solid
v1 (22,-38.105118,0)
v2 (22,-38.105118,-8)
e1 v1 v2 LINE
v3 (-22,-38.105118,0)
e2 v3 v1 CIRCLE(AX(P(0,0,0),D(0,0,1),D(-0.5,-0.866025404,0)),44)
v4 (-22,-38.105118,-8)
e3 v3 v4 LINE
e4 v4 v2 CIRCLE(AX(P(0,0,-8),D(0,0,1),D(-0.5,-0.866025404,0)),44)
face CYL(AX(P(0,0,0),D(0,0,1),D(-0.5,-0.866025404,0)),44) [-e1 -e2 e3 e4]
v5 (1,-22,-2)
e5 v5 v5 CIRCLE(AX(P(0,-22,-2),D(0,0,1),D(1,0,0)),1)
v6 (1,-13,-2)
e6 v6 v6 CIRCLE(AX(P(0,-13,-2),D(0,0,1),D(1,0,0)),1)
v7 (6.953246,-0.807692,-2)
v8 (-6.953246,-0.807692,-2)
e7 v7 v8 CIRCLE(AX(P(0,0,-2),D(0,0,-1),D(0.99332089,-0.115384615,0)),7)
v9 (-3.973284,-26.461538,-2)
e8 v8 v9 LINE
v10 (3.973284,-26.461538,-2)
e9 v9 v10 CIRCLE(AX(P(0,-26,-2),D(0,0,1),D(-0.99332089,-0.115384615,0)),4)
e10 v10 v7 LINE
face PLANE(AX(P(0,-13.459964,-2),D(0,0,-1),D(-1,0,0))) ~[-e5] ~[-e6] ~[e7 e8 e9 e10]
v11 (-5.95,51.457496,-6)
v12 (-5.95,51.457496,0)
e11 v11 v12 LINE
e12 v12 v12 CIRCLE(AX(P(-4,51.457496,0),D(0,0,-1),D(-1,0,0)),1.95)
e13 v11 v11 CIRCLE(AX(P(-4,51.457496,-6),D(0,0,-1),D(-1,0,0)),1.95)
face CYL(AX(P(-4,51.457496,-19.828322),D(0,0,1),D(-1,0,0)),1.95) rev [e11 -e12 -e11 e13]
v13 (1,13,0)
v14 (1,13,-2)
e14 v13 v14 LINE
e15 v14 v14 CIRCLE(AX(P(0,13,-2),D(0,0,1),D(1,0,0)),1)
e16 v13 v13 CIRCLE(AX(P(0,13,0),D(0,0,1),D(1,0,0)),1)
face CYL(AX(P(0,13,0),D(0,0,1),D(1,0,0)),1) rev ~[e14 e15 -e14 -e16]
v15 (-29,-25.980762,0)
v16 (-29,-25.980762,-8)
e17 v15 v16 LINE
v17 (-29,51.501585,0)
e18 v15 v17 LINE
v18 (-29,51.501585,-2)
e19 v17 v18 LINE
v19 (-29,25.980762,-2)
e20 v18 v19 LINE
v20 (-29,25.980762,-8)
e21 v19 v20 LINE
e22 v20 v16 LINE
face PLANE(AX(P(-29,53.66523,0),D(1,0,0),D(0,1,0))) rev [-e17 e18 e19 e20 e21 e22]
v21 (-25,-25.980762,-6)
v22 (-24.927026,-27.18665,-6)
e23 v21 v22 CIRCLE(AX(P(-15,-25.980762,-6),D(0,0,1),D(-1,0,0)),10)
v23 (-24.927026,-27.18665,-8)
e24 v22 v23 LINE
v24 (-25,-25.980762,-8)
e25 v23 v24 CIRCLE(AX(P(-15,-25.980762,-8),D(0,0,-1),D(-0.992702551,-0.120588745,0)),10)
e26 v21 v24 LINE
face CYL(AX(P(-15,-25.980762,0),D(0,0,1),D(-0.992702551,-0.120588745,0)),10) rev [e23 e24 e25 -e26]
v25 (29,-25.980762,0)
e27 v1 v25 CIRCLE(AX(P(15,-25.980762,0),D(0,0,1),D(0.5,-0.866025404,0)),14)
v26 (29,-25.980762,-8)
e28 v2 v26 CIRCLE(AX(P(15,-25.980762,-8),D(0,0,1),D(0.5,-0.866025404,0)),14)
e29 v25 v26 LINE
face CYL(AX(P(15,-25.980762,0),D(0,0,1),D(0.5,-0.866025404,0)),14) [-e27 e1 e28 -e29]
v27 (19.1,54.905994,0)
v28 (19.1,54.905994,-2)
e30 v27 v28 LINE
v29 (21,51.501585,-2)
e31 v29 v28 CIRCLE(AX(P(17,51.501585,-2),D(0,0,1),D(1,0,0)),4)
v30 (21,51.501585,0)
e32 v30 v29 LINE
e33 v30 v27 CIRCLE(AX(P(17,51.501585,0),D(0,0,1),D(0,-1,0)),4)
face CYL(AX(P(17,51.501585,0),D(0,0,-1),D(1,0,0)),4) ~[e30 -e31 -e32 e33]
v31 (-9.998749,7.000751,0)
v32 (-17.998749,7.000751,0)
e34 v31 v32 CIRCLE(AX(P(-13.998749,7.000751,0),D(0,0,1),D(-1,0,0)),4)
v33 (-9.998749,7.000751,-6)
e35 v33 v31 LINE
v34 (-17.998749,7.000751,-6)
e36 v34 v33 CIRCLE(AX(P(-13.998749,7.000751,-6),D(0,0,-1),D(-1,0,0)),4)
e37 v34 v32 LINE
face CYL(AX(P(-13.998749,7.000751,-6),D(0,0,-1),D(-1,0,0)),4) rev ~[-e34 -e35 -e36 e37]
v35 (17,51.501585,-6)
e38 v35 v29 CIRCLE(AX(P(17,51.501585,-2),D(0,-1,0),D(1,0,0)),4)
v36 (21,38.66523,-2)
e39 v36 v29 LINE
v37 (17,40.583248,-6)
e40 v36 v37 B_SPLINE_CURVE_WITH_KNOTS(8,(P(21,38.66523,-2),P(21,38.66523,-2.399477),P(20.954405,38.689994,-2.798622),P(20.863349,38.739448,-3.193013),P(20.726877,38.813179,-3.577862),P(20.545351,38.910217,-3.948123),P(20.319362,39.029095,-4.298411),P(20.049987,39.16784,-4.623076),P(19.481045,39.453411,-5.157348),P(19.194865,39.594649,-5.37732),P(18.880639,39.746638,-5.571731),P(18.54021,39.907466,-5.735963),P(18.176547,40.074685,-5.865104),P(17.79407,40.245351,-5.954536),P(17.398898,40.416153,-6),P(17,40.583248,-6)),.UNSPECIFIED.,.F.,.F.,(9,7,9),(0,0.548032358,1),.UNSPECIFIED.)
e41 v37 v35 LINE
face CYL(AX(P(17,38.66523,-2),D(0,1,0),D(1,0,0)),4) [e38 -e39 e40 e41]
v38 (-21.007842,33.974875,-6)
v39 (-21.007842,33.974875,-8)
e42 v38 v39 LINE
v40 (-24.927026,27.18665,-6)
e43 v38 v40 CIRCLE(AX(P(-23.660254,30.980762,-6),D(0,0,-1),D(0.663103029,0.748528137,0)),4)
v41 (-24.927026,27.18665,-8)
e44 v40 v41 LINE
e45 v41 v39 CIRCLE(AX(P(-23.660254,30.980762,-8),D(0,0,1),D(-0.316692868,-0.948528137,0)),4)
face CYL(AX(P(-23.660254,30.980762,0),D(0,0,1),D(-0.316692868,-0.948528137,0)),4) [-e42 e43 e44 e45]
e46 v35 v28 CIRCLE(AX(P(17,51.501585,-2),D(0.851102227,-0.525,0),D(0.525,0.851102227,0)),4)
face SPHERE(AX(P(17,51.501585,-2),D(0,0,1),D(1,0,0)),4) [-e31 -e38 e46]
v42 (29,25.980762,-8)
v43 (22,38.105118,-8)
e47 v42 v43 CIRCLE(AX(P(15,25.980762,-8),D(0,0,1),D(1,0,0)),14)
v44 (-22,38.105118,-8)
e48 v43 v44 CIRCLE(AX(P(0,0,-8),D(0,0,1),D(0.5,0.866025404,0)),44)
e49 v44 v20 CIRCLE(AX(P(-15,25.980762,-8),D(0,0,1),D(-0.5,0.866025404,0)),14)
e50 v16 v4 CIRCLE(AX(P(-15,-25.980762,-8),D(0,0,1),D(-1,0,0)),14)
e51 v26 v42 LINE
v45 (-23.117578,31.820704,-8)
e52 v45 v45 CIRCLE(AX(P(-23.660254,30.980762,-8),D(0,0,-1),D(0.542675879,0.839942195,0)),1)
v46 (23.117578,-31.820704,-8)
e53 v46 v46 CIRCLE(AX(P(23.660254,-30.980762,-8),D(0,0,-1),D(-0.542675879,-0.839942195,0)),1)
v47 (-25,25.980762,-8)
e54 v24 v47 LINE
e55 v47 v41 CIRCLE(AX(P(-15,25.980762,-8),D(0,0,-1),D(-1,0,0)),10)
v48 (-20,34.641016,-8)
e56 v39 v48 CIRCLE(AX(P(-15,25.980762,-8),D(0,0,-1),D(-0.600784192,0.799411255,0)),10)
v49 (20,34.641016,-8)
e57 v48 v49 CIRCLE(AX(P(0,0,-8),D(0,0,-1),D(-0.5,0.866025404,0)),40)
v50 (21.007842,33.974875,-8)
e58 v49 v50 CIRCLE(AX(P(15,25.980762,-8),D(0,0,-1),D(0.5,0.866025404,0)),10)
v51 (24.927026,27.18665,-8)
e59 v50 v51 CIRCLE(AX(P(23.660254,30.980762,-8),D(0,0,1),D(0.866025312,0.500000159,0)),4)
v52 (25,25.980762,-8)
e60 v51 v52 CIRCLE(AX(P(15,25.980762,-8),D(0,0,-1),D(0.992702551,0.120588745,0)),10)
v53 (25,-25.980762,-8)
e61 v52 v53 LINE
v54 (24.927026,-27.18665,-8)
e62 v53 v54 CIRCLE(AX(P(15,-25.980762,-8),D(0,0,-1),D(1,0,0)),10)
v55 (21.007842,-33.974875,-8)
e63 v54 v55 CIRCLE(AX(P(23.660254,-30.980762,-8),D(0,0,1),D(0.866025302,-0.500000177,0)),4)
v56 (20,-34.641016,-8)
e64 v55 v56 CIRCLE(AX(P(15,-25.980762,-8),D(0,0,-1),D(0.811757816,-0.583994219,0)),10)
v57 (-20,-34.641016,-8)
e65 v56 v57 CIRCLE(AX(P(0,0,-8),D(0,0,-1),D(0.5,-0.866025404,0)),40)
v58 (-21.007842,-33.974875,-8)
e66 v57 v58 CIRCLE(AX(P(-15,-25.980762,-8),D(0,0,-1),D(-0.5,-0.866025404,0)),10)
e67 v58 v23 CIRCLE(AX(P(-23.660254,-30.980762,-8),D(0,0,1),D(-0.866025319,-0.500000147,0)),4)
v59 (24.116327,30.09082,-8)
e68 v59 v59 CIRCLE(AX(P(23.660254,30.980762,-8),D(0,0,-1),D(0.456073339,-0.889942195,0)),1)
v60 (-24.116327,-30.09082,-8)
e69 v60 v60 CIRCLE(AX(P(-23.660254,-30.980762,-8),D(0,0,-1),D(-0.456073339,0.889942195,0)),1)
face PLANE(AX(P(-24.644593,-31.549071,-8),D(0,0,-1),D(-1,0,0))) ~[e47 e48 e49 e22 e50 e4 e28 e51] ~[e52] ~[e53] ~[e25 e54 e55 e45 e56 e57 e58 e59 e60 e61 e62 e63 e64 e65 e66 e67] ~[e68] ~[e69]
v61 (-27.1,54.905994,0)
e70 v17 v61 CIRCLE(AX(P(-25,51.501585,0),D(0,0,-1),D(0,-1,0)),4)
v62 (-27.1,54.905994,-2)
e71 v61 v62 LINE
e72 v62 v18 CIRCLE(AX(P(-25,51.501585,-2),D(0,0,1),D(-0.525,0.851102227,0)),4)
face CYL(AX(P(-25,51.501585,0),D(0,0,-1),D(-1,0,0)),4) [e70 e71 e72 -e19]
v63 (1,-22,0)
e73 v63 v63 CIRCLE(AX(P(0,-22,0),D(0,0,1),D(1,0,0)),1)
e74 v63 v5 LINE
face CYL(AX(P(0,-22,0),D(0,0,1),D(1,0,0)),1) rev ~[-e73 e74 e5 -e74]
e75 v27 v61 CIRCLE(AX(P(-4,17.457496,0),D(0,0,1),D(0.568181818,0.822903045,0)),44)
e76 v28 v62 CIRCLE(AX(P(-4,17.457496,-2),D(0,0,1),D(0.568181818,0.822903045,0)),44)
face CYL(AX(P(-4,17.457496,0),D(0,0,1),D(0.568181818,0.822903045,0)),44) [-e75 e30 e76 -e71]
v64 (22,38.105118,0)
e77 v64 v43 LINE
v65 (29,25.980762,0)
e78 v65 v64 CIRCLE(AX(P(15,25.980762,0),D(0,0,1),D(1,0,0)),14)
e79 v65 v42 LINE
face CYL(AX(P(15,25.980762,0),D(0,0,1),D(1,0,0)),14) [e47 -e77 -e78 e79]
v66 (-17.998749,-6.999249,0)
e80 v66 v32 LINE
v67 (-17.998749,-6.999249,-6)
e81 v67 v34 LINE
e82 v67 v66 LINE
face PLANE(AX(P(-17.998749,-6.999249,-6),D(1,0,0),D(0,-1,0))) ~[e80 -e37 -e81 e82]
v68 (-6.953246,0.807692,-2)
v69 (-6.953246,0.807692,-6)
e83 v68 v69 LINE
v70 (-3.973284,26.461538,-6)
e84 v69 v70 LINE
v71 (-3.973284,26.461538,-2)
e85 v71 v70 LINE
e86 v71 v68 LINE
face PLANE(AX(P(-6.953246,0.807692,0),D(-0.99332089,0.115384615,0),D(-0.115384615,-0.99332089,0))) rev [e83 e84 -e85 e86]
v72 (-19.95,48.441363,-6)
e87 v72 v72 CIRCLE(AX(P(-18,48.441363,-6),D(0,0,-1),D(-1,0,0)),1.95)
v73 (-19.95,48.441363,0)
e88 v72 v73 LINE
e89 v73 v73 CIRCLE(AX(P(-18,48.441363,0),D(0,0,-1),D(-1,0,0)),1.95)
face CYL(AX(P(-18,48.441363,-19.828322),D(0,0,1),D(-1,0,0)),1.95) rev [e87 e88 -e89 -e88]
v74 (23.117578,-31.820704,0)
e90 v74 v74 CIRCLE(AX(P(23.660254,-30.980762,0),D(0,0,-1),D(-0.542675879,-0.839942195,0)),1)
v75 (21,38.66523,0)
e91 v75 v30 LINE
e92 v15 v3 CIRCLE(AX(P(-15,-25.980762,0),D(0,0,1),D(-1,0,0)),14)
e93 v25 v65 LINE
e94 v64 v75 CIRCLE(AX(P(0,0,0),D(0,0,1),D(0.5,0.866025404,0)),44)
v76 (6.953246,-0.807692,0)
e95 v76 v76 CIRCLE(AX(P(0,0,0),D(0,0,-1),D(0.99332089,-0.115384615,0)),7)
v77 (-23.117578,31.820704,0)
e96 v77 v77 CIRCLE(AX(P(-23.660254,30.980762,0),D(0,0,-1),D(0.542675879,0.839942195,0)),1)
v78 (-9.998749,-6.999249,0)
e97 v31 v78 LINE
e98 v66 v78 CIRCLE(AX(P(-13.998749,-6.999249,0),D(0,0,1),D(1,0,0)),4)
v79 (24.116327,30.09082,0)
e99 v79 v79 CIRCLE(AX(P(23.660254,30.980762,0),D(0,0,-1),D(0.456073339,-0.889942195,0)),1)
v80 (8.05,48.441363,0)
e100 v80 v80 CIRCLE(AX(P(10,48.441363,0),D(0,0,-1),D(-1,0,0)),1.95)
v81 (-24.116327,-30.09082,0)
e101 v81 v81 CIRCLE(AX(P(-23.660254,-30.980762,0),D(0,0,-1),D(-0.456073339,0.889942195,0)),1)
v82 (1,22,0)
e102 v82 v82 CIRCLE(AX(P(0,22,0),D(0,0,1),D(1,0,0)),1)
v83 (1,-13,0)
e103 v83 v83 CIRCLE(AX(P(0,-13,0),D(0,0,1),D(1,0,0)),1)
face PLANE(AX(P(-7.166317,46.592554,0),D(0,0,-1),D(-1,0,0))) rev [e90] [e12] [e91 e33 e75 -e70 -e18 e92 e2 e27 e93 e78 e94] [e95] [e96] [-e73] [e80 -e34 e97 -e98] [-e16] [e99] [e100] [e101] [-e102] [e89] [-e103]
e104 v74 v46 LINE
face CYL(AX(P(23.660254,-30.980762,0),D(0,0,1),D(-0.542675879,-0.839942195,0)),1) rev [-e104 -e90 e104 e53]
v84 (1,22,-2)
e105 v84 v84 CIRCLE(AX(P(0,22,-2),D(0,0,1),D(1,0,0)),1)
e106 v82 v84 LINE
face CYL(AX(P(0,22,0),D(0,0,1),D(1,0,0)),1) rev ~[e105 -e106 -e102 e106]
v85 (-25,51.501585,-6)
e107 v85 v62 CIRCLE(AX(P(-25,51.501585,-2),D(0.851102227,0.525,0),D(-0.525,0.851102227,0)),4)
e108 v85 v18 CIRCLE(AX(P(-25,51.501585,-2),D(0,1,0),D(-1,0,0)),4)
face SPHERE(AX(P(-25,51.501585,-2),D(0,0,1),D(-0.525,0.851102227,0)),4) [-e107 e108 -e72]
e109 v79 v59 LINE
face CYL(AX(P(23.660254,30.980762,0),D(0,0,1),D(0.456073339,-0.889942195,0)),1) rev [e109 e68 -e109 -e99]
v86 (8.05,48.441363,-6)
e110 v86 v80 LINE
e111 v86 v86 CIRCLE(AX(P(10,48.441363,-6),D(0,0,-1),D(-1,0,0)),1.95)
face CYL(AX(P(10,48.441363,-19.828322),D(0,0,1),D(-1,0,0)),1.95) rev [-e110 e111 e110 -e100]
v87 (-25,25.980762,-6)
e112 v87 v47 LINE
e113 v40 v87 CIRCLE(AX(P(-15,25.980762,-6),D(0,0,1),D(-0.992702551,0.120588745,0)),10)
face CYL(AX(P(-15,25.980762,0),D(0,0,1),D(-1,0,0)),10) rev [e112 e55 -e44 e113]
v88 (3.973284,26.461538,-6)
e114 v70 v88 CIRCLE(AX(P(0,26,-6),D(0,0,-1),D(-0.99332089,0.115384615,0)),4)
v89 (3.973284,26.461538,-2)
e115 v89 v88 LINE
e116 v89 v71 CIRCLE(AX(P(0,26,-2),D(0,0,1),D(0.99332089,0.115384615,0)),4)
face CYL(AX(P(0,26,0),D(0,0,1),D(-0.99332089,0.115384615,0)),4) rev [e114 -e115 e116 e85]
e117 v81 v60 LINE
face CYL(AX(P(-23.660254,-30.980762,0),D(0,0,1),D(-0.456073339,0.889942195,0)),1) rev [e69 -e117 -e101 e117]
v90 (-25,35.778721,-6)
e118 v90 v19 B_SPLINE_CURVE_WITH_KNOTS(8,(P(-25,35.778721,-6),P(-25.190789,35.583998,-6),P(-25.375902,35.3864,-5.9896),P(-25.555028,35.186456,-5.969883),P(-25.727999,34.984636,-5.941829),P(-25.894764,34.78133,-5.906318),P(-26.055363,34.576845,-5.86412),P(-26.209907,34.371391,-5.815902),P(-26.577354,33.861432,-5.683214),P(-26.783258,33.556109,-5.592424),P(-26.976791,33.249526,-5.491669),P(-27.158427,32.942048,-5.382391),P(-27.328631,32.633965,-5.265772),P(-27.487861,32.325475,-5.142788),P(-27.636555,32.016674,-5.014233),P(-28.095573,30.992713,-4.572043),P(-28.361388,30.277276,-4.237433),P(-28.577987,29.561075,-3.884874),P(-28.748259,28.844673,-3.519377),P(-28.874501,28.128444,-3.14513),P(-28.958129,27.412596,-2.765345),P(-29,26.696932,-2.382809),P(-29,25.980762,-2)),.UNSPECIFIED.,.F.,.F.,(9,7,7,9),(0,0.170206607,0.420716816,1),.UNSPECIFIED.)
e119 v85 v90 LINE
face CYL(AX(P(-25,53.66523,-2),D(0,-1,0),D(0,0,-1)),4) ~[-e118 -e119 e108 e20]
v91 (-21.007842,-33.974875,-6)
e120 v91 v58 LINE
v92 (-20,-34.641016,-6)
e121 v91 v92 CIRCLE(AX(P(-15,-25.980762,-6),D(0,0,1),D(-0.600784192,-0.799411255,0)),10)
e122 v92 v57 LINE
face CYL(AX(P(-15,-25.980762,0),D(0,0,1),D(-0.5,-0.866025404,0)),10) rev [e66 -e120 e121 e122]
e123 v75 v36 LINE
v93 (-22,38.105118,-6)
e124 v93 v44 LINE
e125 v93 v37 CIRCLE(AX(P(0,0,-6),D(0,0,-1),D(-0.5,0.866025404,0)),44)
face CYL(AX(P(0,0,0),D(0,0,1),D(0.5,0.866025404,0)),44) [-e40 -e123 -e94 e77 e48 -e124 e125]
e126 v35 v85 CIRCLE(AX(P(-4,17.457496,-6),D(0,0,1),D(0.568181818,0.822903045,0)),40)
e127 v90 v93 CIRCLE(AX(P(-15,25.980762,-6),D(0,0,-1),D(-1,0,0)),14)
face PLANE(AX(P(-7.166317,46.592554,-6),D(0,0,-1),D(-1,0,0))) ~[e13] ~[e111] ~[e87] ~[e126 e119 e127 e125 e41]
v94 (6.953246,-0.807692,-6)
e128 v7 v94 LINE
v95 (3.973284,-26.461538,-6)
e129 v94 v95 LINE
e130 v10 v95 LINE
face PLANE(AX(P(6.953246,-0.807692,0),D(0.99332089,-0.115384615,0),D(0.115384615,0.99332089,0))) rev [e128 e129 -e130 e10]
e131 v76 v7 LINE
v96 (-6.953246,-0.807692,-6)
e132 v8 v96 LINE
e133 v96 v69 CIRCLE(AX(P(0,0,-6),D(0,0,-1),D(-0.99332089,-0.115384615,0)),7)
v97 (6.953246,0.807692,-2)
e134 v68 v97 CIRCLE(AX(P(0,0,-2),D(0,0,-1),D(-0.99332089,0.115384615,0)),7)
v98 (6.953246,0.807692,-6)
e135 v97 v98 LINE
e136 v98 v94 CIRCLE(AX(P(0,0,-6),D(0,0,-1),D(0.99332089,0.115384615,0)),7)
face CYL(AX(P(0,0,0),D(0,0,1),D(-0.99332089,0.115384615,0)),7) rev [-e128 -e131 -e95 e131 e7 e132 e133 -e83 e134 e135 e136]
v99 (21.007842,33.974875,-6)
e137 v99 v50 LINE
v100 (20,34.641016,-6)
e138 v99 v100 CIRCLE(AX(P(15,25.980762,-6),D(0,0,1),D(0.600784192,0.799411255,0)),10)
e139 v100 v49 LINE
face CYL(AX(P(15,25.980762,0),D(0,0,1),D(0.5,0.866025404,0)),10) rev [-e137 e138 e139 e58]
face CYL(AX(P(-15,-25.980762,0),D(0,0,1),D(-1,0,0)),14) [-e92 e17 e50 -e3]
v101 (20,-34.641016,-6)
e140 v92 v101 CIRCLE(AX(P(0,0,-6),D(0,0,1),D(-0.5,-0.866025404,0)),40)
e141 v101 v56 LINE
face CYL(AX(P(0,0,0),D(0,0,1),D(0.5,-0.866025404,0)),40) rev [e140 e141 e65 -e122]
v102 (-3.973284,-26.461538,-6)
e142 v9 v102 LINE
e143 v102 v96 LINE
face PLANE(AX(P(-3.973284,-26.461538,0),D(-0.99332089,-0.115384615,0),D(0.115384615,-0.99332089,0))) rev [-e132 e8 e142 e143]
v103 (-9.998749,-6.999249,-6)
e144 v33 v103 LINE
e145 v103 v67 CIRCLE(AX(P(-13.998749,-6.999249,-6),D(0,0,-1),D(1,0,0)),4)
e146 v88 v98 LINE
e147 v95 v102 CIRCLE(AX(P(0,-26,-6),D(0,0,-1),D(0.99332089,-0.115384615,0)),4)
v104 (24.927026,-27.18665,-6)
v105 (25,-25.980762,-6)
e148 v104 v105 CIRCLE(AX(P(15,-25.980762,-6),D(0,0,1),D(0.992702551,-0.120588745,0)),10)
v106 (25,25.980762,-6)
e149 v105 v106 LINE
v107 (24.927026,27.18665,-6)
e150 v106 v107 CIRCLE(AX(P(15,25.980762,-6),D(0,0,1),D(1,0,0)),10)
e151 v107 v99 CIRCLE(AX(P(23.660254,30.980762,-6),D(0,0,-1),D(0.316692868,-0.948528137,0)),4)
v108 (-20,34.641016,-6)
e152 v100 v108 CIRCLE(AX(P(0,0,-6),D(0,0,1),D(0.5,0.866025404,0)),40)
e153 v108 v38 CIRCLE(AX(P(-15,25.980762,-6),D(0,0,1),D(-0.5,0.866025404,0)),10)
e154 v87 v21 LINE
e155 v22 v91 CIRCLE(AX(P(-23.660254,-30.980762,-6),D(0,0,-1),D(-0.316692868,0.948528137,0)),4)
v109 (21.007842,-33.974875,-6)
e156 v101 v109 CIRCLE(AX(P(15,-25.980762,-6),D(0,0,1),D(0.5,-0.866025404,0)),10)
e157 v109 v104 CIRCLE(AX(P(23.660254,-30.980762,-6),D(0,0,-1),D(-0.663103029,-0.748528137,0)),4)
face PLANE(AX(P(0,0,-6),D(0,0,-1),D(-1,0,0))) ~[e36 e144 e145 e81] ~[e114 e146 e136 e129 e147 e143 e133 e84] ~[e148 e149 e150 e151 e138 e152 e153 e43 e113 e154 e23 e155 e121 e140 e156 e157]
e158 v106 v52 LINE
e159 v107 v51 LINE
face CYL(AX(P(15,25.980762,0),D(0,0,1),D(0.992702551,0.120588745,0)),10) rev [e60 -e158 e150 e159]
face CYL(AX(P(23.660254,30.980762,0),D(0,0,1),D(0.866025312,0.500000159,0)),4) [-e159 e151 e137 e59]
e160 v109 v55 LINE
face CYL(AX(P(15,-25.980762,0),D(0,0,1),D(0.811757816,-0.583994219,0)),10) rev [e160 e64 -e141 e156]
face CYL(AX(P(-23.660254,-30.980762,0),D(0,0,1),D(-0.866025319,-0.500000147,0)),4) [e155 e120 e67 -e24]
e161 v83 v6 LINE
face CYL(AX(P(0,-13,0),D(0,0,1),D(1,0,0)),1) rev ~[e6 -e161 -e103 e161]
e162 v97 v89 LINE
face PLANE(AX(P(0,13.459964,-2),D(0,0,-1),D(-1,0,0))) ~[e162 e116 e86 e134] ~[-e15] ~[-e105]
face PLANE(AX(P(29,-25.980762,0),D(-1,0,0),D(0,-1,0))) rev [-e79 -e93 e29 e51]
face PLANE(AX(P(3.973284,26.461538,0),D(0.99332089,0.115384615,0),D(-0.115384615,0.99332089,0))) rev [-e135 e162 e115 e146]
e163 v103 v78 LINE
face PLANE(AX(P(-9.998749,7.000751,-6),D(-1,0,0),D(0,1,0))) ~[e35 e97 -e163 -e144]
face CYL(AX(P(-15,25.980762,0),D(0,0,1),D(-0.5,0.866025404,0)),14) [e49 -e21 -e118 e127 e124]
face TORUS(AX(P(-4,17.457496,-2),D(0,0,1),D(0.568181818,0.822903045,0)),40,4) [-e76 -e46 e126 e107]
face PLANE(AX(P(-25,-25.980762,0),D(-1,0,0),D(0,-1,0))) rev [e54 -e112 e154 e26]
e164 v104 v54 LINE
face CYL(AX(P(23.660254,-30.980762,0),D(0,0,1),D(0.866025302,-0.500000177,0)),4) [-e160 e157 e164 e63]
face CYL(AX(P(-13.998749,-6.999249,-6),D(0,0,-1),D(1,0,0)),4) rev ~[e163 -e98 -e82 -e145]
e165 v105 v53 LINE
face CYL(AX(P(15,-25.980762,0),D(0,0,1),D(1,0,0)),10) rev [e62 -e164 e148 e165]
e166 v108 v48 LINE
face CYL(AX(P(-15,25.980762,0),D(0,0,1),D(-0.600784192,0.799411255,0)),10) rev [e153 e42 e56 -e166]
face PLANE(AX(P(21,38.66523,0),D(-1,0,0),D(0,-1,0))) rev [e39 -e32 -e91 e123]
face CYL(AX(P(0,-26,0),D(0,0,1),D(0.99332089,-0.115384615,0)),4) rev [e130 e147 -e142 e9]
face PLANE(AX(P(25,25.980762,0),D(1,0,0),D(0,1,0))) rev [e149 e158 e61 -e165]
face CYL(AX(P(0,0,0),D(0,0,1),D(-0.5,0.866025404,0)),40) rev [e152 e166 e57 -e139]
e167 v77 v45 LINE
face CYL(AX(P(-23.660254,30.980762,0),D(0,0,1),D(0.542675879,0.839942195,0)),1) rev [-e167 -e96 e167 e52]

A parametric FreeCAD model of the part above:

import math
import FreeCAD as App
import Part
import Sketcher
Q = App.Units.Quantity


def edges_at(feature, points):
    """Names of the edges that pass closest to the given points."""
    edges = feature.Shape.Edges
    near = lambda p: min(range(len(edges)), key=lambda i: edges[i].distToShape(Part.Vertex(*p))[0])
    return sorted({f"Edge{near(p) + 1}" for p in points})

doc = App.newDocument("Part")
body = doc.addObject("PartDesign::Body", "Body")

# Sketch on XY plane
sketch1 = doc.addObject("Sketcher::SketchObject", "Sketch")
body.addObject(sketch1)
sketch1.AttachmentSupport = (doc.XY_Plane, [""])
sketch1.MapMode = "FlatFace"
sketch1.addGeometry(Part.LineSegment(App.Vector(25, -26, 0), App.Vector(25, 26, 0)), False)
sketch1.addGeometry(Part.ArcOfCircle(Part.Circle(App.Vector(15, 26, 0), App.Vector(0, 0, 1), 10), math.radians(0), math.radians(6.93)), False)
sketch1.addGeometry(Part.ArcOfCircle(Part.Circle(App.Vector(23.7, 31, 0), App.Vector(0, 0, 1), 4), math.radians(132), math.radians(288)), False)
sketch1.addGeometry(Part.ArcOfCircle(Part.Circle(App.Vector(15, 26, 0), App.Vector(0, 0, 1), 10), math.radians(53.07), math.radians(60)), False)
sketch1.addGeometry(Part.ArcOfCircle(Part.Circle(App.Vector(0, 0, 0), App.Vector(0, 0, 1), 40), math.radians(60), math.radians(120)), False)
sketch1.addGeometry(Part.ArcOfCircle(Part.Circle(App.Vector(-15, 26, 0), App.Vector(0, 0, 1), 10), math.radians(120), math.radians(126.93)), False)
sketch1.addGeometry(Part.ArcOfCircle(Part.Circle(App.Vector(-23.7, 31, 0), App.Vector(0, 0, 1), 4), math.radians(-108), math.radians(48)), False)
sketch1.addGeometry(Part.ArcOfCircle(Part.Circle(App.Vector(-15, 26, 0), App.Vector(0, 0, 1), 10), math.radians(173.07), math.radians(180)), False)
sketch1.addGeometry(Part.LineSegment(App.Vector(-25, 26, 0), App.Vector(-25, -26, 0)), False)
sketch1.addGeometry(Part.ArcOfCircle(Part.Circle(App.Vector(-15, -26, 0), App.Vector(0, 0, 1), 10), math.radians(180), math.radians(186.93)), False)
sketch1.addGeometry(Part.ArcOfCircle(Part.Circle(App.Vector(-23.7, -31, 0), App.Vector(0, 0, 1), 4), math.radians(-48), math.radians(108)), False)
sketch1.addGeometry(Part.ArcOfCircle(Part.Circle(App.Vector(-15, -26, 0), App.Vector(0, 0, 1), 10), math.radians(-126.93), math.radians(-120)), False)
sketch1.addGeometry(Part.ArcOfCircle(Part.Circle(App.Vector(0, 0, 0), App.Vector(0, 0, 1), 40), math.radians(-120), math.radians(-60)), False)
sketch1.addGeometry(Part.ArcOfCircle(Part.Circle(App.Vector(15, -26, 0), App.Vector(0, 0, 1), 10), math.radians(-60), math.radians(-53.07)), False)
sketch1.addGeometry(Part.ArcOfCircle(Part.Circle(App.Vector(23.7, -31, 0), App.Vector(0, 0, 1), 4), math.radians(72), math.radians(228)), False)
sketch1.addGeometry(Part.ArcOfCircle(Part.Circle(App.Vector(15, -26, 0), App.Vector(0, 0, 1), 10), math.radians(-6.93), math.radians(0)), False)
sketch1.addGeometry(Part.LineSegment(App.Vector(-4, -26.5, 0), App.Vector(-7, -0.8, 0)), False)
sketch1.addGeometry(Part.ArcOfCircle(Part.Circle(App.Vector(0, 0, 0), App.Vector(0, 0, 1), 7), math.radians(173.37), math.radians(186.63)), False)
sketch1.addGeometry(Part.LineSegment(App.Vector(-7, 0.8, 0), App.Vector(-4, 26.5, 0)), False)
sketch1.addGeometry(Part.ArcOfCircle(Part.Circle(App.Vector(0, 26, 0), App.Vector(0, 0, 1), 4), math.radians(7), math.radians(173)), False)
sketch1.addGeometry(Part.LineSegment(App.Vector(4, 26.5, 0), App.Vector(7, 0.8, 0)), False)
sketch1.addGeometry(Part.ArcOfCircle(Part.Circle(App.Vector(0, 0, 0), App.Vector(0, 0, 1), 7), math.radians(-6.63), math.radians(6.63)), False)
sketch1.addGeometry(Part.LineSegment(App.Vector(7, -0.8, 0), App.Vector(4, -26.5, 0)), False)
sketch1.addGeometry(Part.ArcOfCircle(Part.Circle(App.Vector(0, -26, 0), App.Vector(0, 0, 1), 4), math.radians(-173), math.radians(-7)), False)
sketch1.addConstraint(Sketcher.Constraint("Tangent", 0, 2, 1, 1))
sketch1.addConstraint(Sketcher.Constraint("Coincident", 1, 2, 2, 2))
sketch1.addConstraint(Sketcher.Constraint("Coincident", 2, 1, 3, 1))
sketch1.addConstraint(Sketcher.Constraint("Tangent", 3, 2, 4, 1))
sketch1.addConstraint(Sketcher.Constraint("Tangent", 4, 2, 5, 1))
sketch1.addConstraint(Sketcher.Constraint("Coincident", 5, 2, 6, 2))
sketch1.addConstraint(Sketcher.Constraint("Coincident", 6, 1, 7, 1))
sketch1.addConstraint(Sketcher.Constraint("Tangent", 7, 2, 8, 1))
sketch1.addConstraint(Sketcher.Constraint("Tangent", 8, 2, 9, 1))
sketch1.addConstraint(Sketcher.Constraint("Coincident", 9, 2, 10, 2))
sketch1.addConstraint(Sketcher.Constraint("Coincident", 10, 1, 11, 1))
sketch1.addConstraint(Sketcher.Constraint("Tangent", 11, 2, 12, 1))
sketch1.addConstraint(Sketcher.Constraint("Tangent", 12, 2, 13, 1))
sketch1.addConstraint(Sketcher.Constraint("Coincident", 13, 2, 14, 2))
sketch1.addConstraint(Sketcher.Constraint("Coincident", 14, 1, 15, 1))
sketch1.addConstraint(Sketcher.Constraint("Tangent", 15, 2, 0, 1))
sketch1.addConstraint(Sketcher.Constraint("Tangent", 16, 2, 17, 2))
sketch1.addConstraint(Sketcher.Constraint("Tangent", 17, 1, 18, 1))
sketch1.addConstraint(Sketcher.Constraint("Tangent", 18, 2, 19, 2))
sketch1.addConstraint(Sketcher.Constraint("Tangent", 19, 1, 20, 1))
sketch1.addConstraint(Sketcher.Constraint("Tangent", 20, 2, 21, 2))
sketch1.addConstraint(Sketcher.Constraint("Tangent", 21, 1, 22, 1))
sketch1.addConstraint(Sketcher.Constraint("Tangent", 22, 2, 23, 2))
sketch1.addConstraint(Sketcher.Constraint("Tangent", 23, 1, 16, 1))
sketch1.addConstraint(Sketcher.Constraint("Vertical", 0))
sketch1.addConstraint(Sketcher.Constraint("Vertical", 8))
sketch1.addConstraint(Sketcher.Constraint("Coincident", 4, 3, -1, 1))
sketch1.addConstraint(Sketcher.Constraint("Coincident", 12, 3, -1, 1))
sketch1.addConstraint(Sketcher.Constraint("Coincident", 17, 3, -1, 1))
sketch1.addConstraint(Sketcher.Constraint("Coincident", 21, 3, -1, 1))
sketch1.addConstraint(Sketcher.Constraint("Coincident", 3, 3, 1, 3))
sketch1.addConstraint(Sketcher.Constraint("Coincident", 7, 3, 5, 3))
sketch1.addConstraint(Sketcher.Constraint("Coincident", 11, 3, 9, 3))
sketch1.addConstraint(Sketcher.Constraint("Coincident", 15, 3, 13, 3))
sketch1.addConstraint(Sketcher.Constraint("Equal", 1, 3))
sketch1.addConstraint(Sketcher.Constraint("Equal", 3, 5))
sketch1.addConstraint(Sketcher.Constraint("Equal", 2, 6))
sketch1.addConstraint(Sketcher.Constraint("Equal", 5, 7))
sketch1.addConstraint(Sketcher.Constraint("Equal", 7, 9))
sketch1.addConstraint(Sketcher.Constraint("Equal", 6, 10))
sketch1.addConstraint(Sketcher.Constraint("Equal", 9, 11))
sketch1.addConstraint(Sketcher.Constraint("Equal", 4, 12))
sketch1.addConstraint(Sketcher.Constraint("Equal", 11, 13))
sketch1.addConstraint(Sketcher.Constraint("Equal", 10, 14))
sketch1.addConstraint(Sketcher.Constraint("Equal", 13, 15))
sketch1.addConstraint(Sketcher.Constraint("Equal", 14, 19))
sketch1.addConstraint(Sketcher.Constraint("Equal", 17, 21))
sketch1.addConstraint(Sketcher.Constraint("Equal", 19, 23))
sketch1.addConstraint(Sketcher.Constraint("Symmetric", 2, 3, 10, 3, -1, 1))
sketch1.addConstraint(Sketcher.Constraint("Symmetric", 6, 3, 14, 3, -1, 1))
sketch1.addConstraint(Sketcher.Constraint("Symmetric", 19, 3, 23, 3, -1, 1))
sketch1.addConstraint(Sketcher.Constraint("Symmetric", 2, 3, 6, 3, -2))
sketch1.addConstraint(Sketcher.Constraint("PointOnObject", 19, 3, -2))
sketch1.addConstraint(Sketcher.Constraint("Horizontal", 3, 3, 5, 3))
sketch1.addConstraint(Sketcher.Constraint("Radius", 1, Q("10 mm")))
sketch1.addConstraint(Sketcher.Constraint("Radius", 2, Q("4 mm")))
sketch1.addConstraint(Sketcher.Constraint("Radius", 4, Q("40 mm")))
sketch1.addConstraint(Sketcher.Constraint("Radius", 17, Q("7 mm")))
sketch1.addConstraint(Sketcher.Constraint("DistanceX", -1, 1, 1, 3, Q("15 mm")))
sketch1.addConstraint(Sketcher.Constraint("DistanceY", -1, 1, 19, 3, Q("26 mm")))
sketch1.addConstraint(Sketcher.Constraint("DistanceY", 1, 3, 2, 3, Q("5 mm")))
sketch1.addConstraint(Sketcher.Constraint("DistanceY", -1, 1, 1, 2, Q("27.18665 mm")))
pad1 = doc.addObject("PartDesign::Pad", "Pad")
body.addObject(pad1)
pad1.Profile = sketch1
pad1.Length = 6

# Sketch on XY plane
sketch2 = doc.addObject("Sketcher::SketchObject", "Sketch001")
body.addObject(sketch2)
sketch2.AttachmentSupport = (doc.XY_Plane, [""])
sketch2.MapMode = "FlatFace"
sketch2.addGeometry(Part.LineSegment(App.Vector(-4, 26.5, 0), App.Vector(-7, 0.8, 0)), False)
sketch2.addGeometry(Part.ArcOfCircle(Part.Circle(App.Vector(0, 0, 0), App.Vector(0, 0, 1), 7), math.radians(7), math.radians(173)), False)
sketch2.addGeometry(Part.LineSegment(App.Vector(7, 0.8, 0), App.Vector(4, 26.5, 0)), False)
sketch2.addGeometry(Part.ArcOfCircle(Part.Circle(App.Vector(0, 26, 0), App.Vector(0, 0, 1), 4), math.radians(7), math.radians(173)), False)
sketch2.addGeometry(Part.Circle(App.Vector(0, 13, 0), App.Vector(0, 0, 1), 1), False)
sketch2.addGeometry(Part.Circle(App.Vector(0, 22, 0), App.Vector(0, 0, 1), 1), False)
sketch2.addGeometry(Part.ArcOfCircle(Part.Circle(App.Vector(0, 0, 0), App.Vector(0, 0, 1), 7), math.radians(-173), math.radians(-7)), False)
sketch2.addGeometry(Part.LineSegment(App.Vector(-7, -0.8, 0), App.Vector(-4, -26.5, 0)), False)
sketch2.addGeometry(Part.ArcOfCircle(Part.Circle(App.Vector(0, -26, 0), App.Vector(0, 0, 1), 4), math.radians(-173), math.radians(-7)), False)
sketch2.addGeometry(Part.LineSegment(App.Vector(4, -26.5, 0), App.Vector(7, -0.8, 0)), False)
sketch2.addGeometry(Part.Circle(App.Vector(0, -22, 0), App.Vector(0, 0, 1), 1), False)
sketch2.addGeometry(Part.Circle(App.Vector(0, -13, 0), App.Vector(0, 0, 1), 1), False)
sketch2.addConstraint(Sketcher.Constraint("Tangent", 0, 2, 1, 2))
sketch2.addConstraint(Sketcher.Constraint("Tangent", 1, 1, 2, 1))
sketch2.addConstraint(Sketcher.Constraint("Tangent", 2, 2, 3, 1))
sketch2.addConstraint(Sketcher.Constraint("Tangent", 3, 2, 0, 1))
sketch2.addConstraint(Sketcher.Constraint("Tangent", 6, 1, 7, 1))
sketch2.addConstraint(Sketcher.Constraint("Tangent", 7, 2, 8, 1))
sketch2.addConstraint(Sketcher.Constraint("Tangent", 8, 2, 9, 1))
sketch2.addConstraint(Sketcher.Constraint("Tangent", 9, 2, 6, 2))
sketch2.addConstraint(Sketcher.Constraint("Coincident", 1, 3, -1, 1))
sketch2.addConstraint(Sketcher.Constraint("Coincident", 6, 3, -1, 1))
sketch2.addConstraint(Sketcher.Constraint("Equal", 4, 5))
sketch2.addConstraint(Sketcher.Constraint("Equal", 1, 6))
sketch2.addConstraint(Sketcher.Constraint("Equal", 3, 8))
sketch2.addConstraint(Sketcher.Constraint("Equal", 5, 10))
sketch2.addConstraint(Sketcher.Constraint("Equal", 10, 11))
sketch2.addConstraint(Sketcher.Constraint("Symmetric", 3, 3, 8, 3, -1, 1))
sketch2.addConstraint(Sketcher.Constraint("Symmetric", 5, 3, 10, 3, -1, 1))
sketch2.addConstraint(Sketcher.Constraint("Symmetric", 4, 3, 11, 3, -1, 1))
sketch2.addConstraint(Sketcher.Constraint("PointOnObject", 3, 3, -2))
sketch2.addConstraint(Sketcher.Constraint("PointOnObject", 4, 3, -2))
sketch2.addConstraint(Sketcher.Constraint("PointOnObject", 5, 3, -2))
sketch2.addConstraint(Sketcher.Constraint("Diameter", 4, Q("2 mm")))
sketch2.addConstraint(Sketcher.Constraint("Radius", 1, Q("7 mm")))
sketch2.addConstraint(Sketcher.Constraint("Radius", 3, Q("4 mm")))
sketch2.addConstraint(Sketcher.Constraint("DistanceY", -1, 1, 3, 3, Q("26 mm")))
sketch2.addConstraint(Sketcher.Constraint("DistanceY", -1, 1, 4, 3, Q("13 mm")))
sketch2.addConstraint(Sketcher.Constraint("DistanceY", -1, 1, 5, 3, Q("22 mm")))
pad2 = doc.addObject("PartDesign::Pad", "Pad001")
body.addObject(pad2)
pad2.Profile = sketch2
pad2.Length = 2

# Sketch on XY plane
sketch3 = doc.addObject("Sketcher::SketchObject", "Sketch002")
body.addObject(sketch3)
sketch3.AttachmentSupport = (doc.XY_Plane, [""])
sketch3.MapMode = "FlatFace"
sketch3.addGeometry(Part.ArcOfCircle(Part.Circle(App.Vector(15, 26, 0), App.Vector(0, 0, 1), 14), math.radians(0), math.radians(60)), False)
sketch3.addGeometry(Part.ArcOfCircle(Part.Circle(App.Vector(0, 0, 0), App.Vector(0, 0, 1), 44), math.radians(60), math.radians(120)), False)
sketch3.addGeometry(Part.ArcOfCircle(Part.Circle(App.Vector(-15, 26, 0), App.Vector(0, 0, 1), 14), math.radians(120), math.radians(180)), False)
sketch3.addGeometry(Part.LineSegment(App.Vector(-29, 26, 0), App.Vector(-29, -26, 0)), False)
sketch3.addGeometry(Part.ArcOfCircle(Part.Circle(App.Vector(-15, -26, 0), App.Vector(0, 0, 1), 14), math.radians(180), math.radians(240)), False)
sketch3.addGeometry(Part.ArcOfCircle(Part.Circle(App.Vector(0, 0, 0), App.Vector(0, 0, 1), 44), math.radians(-120), math.radians(-60)), False)
sketch3.addGeometry(Part.ArcOfCircle(Part.Circle(App.Vector(15, -26, 0), App.Vector(0, 0, 1), 14), math.radians(-60), math.radians(0)), False)
sketch3.addGeometry(Part.LineSegment(App.Vector(29, -26, 0), App.Vector(29, 26, 0)), False)
sketch3.addGeometry(Part.Circle(App.Vector(-23.7, 31, 0), App.Vector(0, 0, 1), 1), False)
sketch3.addGeometry(Part.Circle(App.Vector(-23.7, -31, 0), App.Vector(0, 0, 1), 1), False)
sketch3.addGeometry(Part.Circle(App.Vector(23.7, -31, 0), App.Vector(0, 0, 1), 1), False)
sketch3.addGeometry(Part.Circle(App.Vector(23.7, 31, 0), App.Vector(0, 0, 1), 1), False)
sketch3.addGeometry(Part.ArcOfCircle(Part.Circle(App.Vector(-15, 26, 0), App.Vector(0, 0, 1), 10), math.radians(173.07), math.radians(180)), False)
sketch3.addGeometry(Part.ArcOfCircle(Part.Circle(App.Vector(-23.7, 31, 0), App.Vector(0, 0, 1), 4), math.radians(-108), math.radians(48)), False)
sketch3.addGeometry(Part.ArcOfCircle(Part.Circle(App.Vector(-15, 26, 0), App.Vector(0, 0, 1), 10), math.radians(120), math.radians(126.93)), False)
sketch3.addGeometry(Part.ArcOfCircle(Part.Circle(App.Vector(0, 0, 0), App.Vector(0, 0, 1), 40), math.radians(60), math.radians(120)), False)
sketch3.addGeometry(Part.ArcOfCircle(Part.Circle(App.Vector(15, 26, 0), App.Vector(0, 0, 1), 10), math.radians(53.07), math.radians(60)), False)
sketch3.addGeometry(Part.ArcOfCircle(Part.Circle(App.Vector(23.7, 31, 0), App.Vector(0, 0, 1), 4), math.radians(132), math.radians(288)), False)
sketch3.addGeometry(Part.ArcOfCircle(Part.Circle(App.Vector(15, 26, 0), App.Vector(0, 0, 1), 10), math.radians(0), math.radians(6.93)), False)
sketch3.addGeometry(Part.LineSegment(App.Vector(25, 26, 0), App.Vector(25, -26, 0)), False)
sketch3.addGeometry(Part.ArcOfCircle(Part.Circle(App.Vector(15, -26, 0), App.Vector(0, 0, 1), 10), math.radians(-6.93), math.radians(0)), False)
sketch3.addGeometry(Part.ArcOfCircle(Part.Circle(App.Vector(23.7, -31, 0), App.Vector(0, 0, 1), 4), math.radians(72), math.radians(228)), False)
sketch3.addGeometry(Part.ArcOfCircle(Part.Circle(App.Vector(15, -26, 0), App.Vector(0, 0, 1), 10), math.radians(-60), math.radians(-53.07)), False)
sketch3.addGeometry(Part.ArcOfCircle(Part.Circle(App.Vector(0, 0, 0), App.Vector(0, 0, 1), 40), math.radians(-120), math.radians(-60)), False)
sketch3.addGeometry(Part.ArcOfCircle(Part.Circle(App.Vector(-15, -26, 0), App.Vector(0, 0, 1), 10), math.radians(-126.93), math.radians(-120)), False)
sketch3.addGeometry(Part.ArcOfCircle(Part.Circle(App.Vector(-23.7, -31, 0), App.Vector(0, 0, 1), 4), math.radians(-48), math.radians(108)), False)
sketch3.addGeometry(Part.ArcOfCircle(Part.Circle(App.Vector(-15, -26, 0), App.Vector(0, 0, 1), 10), math.radians(180), math.radians(186.93)), False)
sketch3.addGeometry(Part.LineSegment(App.Vector(-25, -26, 0), App.Vector(-25, 26, 0)), False)
sketch3.addConstraint(Sketcher.Constraint("Tangent", 0, 2, 1, 1))
sketch3.addConstraint(Sketcher.Constraint("Tangent", 1, 2, 2, 1))
sketch3.addConstraint(Sketcher.Constraint("Tangent", 2, 2, 3, 1))
sketch3.addConstraint(Sketcher.Constraint("Tangent", 3, 2, 4, 1))
sketch3.addConstraint(Sketcher.Constraint("Tangent", 4, 2, 5, 1))
sketch3.addConstraint(Sketcher.Constraint("Tangent", 5, 2, 6, 1))
sketch3.addConstraint(Sketcher.Constraint("Tangent", 6, 2, 7, 1))
sketch3.addConstraint(Sketcher.Constraint("Tangent", 7, 2, 0, 1))
sketch3.addConstraint(Sketcher.Constraint("Coincident", 12, 1, 13, 1))
sketch3.addConstraint(Sketcher.Constraint("Coincident", 13, 2, 14, 2))
sketch3.addConstraint(Sketcher.Constraint("Tangent", 14, 1, 15, 2))
sketch3.addConstraint(Sketcher.Constraint("Tangent", 15, 1, 16, 2))
sketch3.addConstraint(Sketcher.Constraint("Coincident", 16, 1, 17, 1))
sketch3.addConstraint(Sketcher.Constraint("Coincident", 17, 2, 18, 2))
sketch3.addConstraint(Sketcher.Constraint("Tangent", 18, 1, 19, 1))
sketch3.addConstraint(Sketcher.Constraint("Tangent", 19, 2, 20, 2))
sketch3.addConstraint(Sketcher.Constraint("Coincident", 20, 1, 21, 1))
sketch3.addConstraint(Sketcher.Constraint("Coincident", 21, 2, 22, 2))
sketch3.addConstraint(Sketcher.Constraint("Tangent", 22, 1, 23, 2))
sketch3.addConstraint(Sketcher.Constraint("Tangent", 23, 1, 24, 2))
sketch3.addConstraint(Sketcher.Constraint("Coincident", 24, 1, 25, 1))
sketch3.addConstraint(Sketcher.Constraint("Coincident", 25, 2, 26, 2))
sketch3.addConstraint(Sketcher.Constraint("Tangent", 26, 1, 27, 1))
sketch3.addConstraint(Sketcher.Constraint("Tangent", 27, 2, 12, 2))
sketch3.addConstraint(Sketcher.Constraint("Vertical", 3))
sketch3.addConstraint(Sketcher.Constraint("Vertical", 7))
sketch3.addConstraint(Sketcher.Constraint("Vertical", 19))
sketch3.addConstraint(Sketcher.Constraint("Vertical", 27))
sketch3.addConstraint(Sketcher.Constraint("Coincident", 1, 3, -1, 1))
sketch3.addConstraint(Sketcher.Constraint("Coincident", 5, 3, -1, 1))
sketch3.addConstraint(Sketcher.Constraint("Coincident", 15, 3, -1, 1))
sketch3.addConstraint(Sketcher.Constraint("Coincident", 23, 3, -1, 1))
sketch3.addConstraint(Sketcher.Constraint("Coincident", 12, 3, 2, 3))
sketch3.addConstraint(Sketcher.Constraint("Coincident", 13, 3, 8, 3))
sketch3.addConstraint(Sketcher.Constraint("Coincident", 14, 3, 2, 3))
sketch3.addConstraint(Sketcher.Constraint("Coincident", 16, 3, 0, 3))
sketch3.addConstraint(Sketcher.Constraint("Coincident", 17, 3, 11, 3))
sketch3.addConstraint(Sketcher.Constraint("Coincident", 18, 3, 0, 3))
sketch3.addConstraint(Sketcher.Constraint("Coincident", 20, 3, 6, 3))
sketch3.addConstraint(Sketcher.Constraint("Coincident", 21, 3, 10, 3))
sketch3.addConstraint(Sketcher.Constraint("Coincident", 22, 3, 6, 3))
sketch3.addConstraint(Sketcher.Constraint("Coincident", 24, 3, 4, 3))
sketch3.addConstraint(Sketcher.Constraint("Coincident", 25, 3, 9, 3))
sketch3.addConstraint(Sketcher.Constraint("Coincident", 26, 3, 4, 3))
sketch3.addConstraint(Sketcher.Constraint("Equal", 0, 2))
sketch3.addConstraint(Sketcher.Constraint("Equal", 2, 4))
sketch3.addConstraint(Sketcher.Constraint("Equal", 1, 5))
sketch3.addConstraint(Sketcher.Constraint("Equal", 4, 6))
sketch3.addConstraint(Sketcher.Constraint("Equal", 8, 9))
sketch3.addConstraint(Sketcher.Constraint("Equal", 9, 10))
sketch3.addConstraint(Sketcher.Constraint("Equal", 10, 11))
sketch3.addConstraint(Sketcher.Constraint("Equal", 12, 14))
sketch3.addConstraint(Sketcher.Constraint("Equal", 13, 17))
sketch3.addConstraint(Sketcher.Constraint("Equal", 16, 18))
sketch3.addConstraint(Sketcher.Constraint("Equal", 17, 21))
sketch3.addConstraint(Sketcher.Constraint("Equal", 20, 22))
sketch3.addConstraint(Sketcher.Constraint("Equal", 21, 25))
sketch3.addConstraint(Sketcher.Constraint("Symmetric", 8, 3, 10, 3, -1, 1))
sketch3.addConstraint(Sketcher.Constraint("Symmetric", 9, 3, 11, 3, -1, 1))
sketch3.addConstraint(Sketcher.Constraint("Symmetric", 9, 3, 10, 3, -2))
sketch3.addConstraint(Sketcher.Constraint("Horizontal", 0, 3, 2, 3))
sketch3.addConstraint(Sketcher.Constraint("Diameter", 8, Q("2 mm")))
sketch3.addConstraint(Sketcher.Constraint("Radius", 0, Q("14 mm")))
sketch3.addConstraint(Sketcher.Constraint("Radius", 1, Q("44 mm")))
sketch3.addConstraint(Sketcher.Constraint("Radius", 12, Q("10 mm")))
sketch3.addConstraint(Sketcher.Constraint("Radius", 13, Q("4 mm")))
sketch3.addConstraint(Sketcher.Constraint("DistanceX", -1, 1, 0, 3, Q("15 mm")))
sketch3.addConstraint(Sketcher.Constraint("DistanceY", 2, 3, 8, 3, Q("5 mm")))
sketch3.addConstraint(Sketcher.Constraint("DistanceY", -1, 1, 12, 1, Q("27.18665 mm")))
pad3 = doc.addObject("PartDesign::Pad", "Pad002")
body.addObject(pad3)
pad3.Profile = sketch3
pad3.Length = 8

# Sketch on XY plane
sketch4 = doc.addObject("Sketcher::SketchObject", "Sketch003")
body.addObject(sketch4)
sketch4.AttachmentSupport = (doc.XY_Plane, [""])
sketch4.MapMode = "FlatFace"
sketch4.AttachmentOffset = App.Placement(App.Vector(0, 0, 6), App.Rotation())
sketch4.addGeometry(Part.LineSegment(App.Vector(-18, 7, 0), App.Vector(-18, -7, 0)), False)
sketch4.addGeometry(Part.ArcOfCircle(Part.Circle(App.Vector(-14, -7, 0), App.Vector(0, 0, 1), 4), math.radians(180), math.radians(360)), False)
sketch4.addGeometry(Part.LineSegment(App.Vector(-10, -7, 0), App.Vector(-10, 7, 0)), False)
sketch4.addGeometry(Part.ArcOfCircle(Part.Circle(App.Vector(-14, 7, 0), App.Vector(0, 0, 1), 4), math.radians(0), math.radians(180)), False)
sketch4.addConstraint(Sketcher.Constraint("Tangent", 0, 2, 1, 1))
sketch4.addConstraint(Sketcher.Constraint("Tangent", 1, 2, 2, 1))
sketch4.addConstraint(Sketcher.Constraint("Tangent", 2, 2, 3, 1))
sketch4.addConstraint(Sketcher.Constraint("Tangent", 3, 2, 0, 1))
sketch4.addConstraint(Sketcher.Constraint("Vertical", 0))
sketch4.addConstraint(Sketcher.Constraint("Vertical", 2))
sketch4.addConstraint(Sketcher.Constraint("Radius", 1, Q("4 mm")))
sketch4.addConstraint(Sketcher.Constraint("DistanceY", 0, 2, 0, 1, Q("14 mm")))
sketch4.addConstraint(Sketcher.Constraint("DistanceX", 1, 3, -1, 1, Q("13.998749 mm")))
sketch4.addConstraint(Sketcher.Constraint("DistanceY", 1, 3, -1, 1, Q("6.999249 mm")))
pocket1 = doc.addObject("PartDesign::Pocket", "Pocket")
body.addObject(pocket1)
pocket1.Profile = sketch4
pocket1.Type = "ThroughAll"

# Sketch on XY plane
sketch5 = doc.addObject("Sketcher::SketchObject", "Sketch004")
body.addObject(sketch5)
sketch5.AttachmentSupport = (doc.XY_Plane, [""])
sketch5.MapMode = "FlatFace"
sketch5.addGeometry(Part.ArcOfCircle(Part.Circle(App.Vector(0, 0, 0), App.Vector(0, 0, 1), 44), math.radians(61), math.radians(120)), False)
sketch5.addGeometry(Part.LineSegment(App.Vector(21, 39, 0), App.Vector(21, 54, 0)), False)
sketch5.addGeometry(Part.ArcOfCircle(Part.Circle(App.Vector(-4, 17, 0), App.Vector(0, 0, 1), 44), math.radians(55), math.radians(125)), False)
sketch5.addGeometry(Part.LineSegment(App.Vector(-29, 54, 0), App.Vector(-29, 26, 0)), False)
sketch5.addGeometry(Part.ArcOfCircle(Part.Circle(App.Vector(-15, 26, 0), App.Vector(0, 0, 1), 14), math.radians(120), math.radians(180)), False)
sketch5.addConstraint(Sketcher.Constraint("Coincident", 0, 1, 1, 1))
sketch5.addConstraint(Sketcher.Constraint("Coincident", 1, 2, 2, 1))
sketch5.addConstraint(Sketcher.Constraint("Coincident", 2, 2, 3, 1))
sketch5.addConstraint(Sketcher.Constraint("Tangent", 3, 2, 4, 2))
sketch5.addConstraint(Sketcher.Constraint("Tangent", 4, 1, 0, 2))
sketch5.addConstraint(Sketcher.Constraint("Vertical", 1))
sketch5.addConstraint(Sketcher.Constraint("Vertical", 3))
sketch5.addConstraint(Sketcher.Constraint("Coincident", 0, 3, -1, 1))
sketch5.addConstraint(Sketcher.Constraint("Equal", 0, 2))
sketch5.addConstraint(Sketcher.Constraint("Horizontal", 1, 2, 2, 2))
sketch5.addConstraint(Sketcher.Constraint("Radius", 0, Q("44 mm")))
sketch5.addConstraint(Sketcher.Constraint("Radius", 4, Q("14 mm")))
sketch5.addConstraint(Sketcher.Constraint("DistanceY", 1, 1, 1, 2, Q("15 mm")))
sketch5.addConstraint(Sketcher.Constraint("DistanceX", 2, 3, -1, 1, Q("4 mm")))
sketch5.addConstraint(Sketcher.Constraint("DistanceX", 4, 3, -1, 1, Q("15 mm")))
pad4 = doc.addObject("PartDesign::Pad", "Pad003")
body.addObject(pad4)
pad4.Profile = sketch5
pad4.Length = 6
doc.recompute()

fillet = doc.addObject("PartDesign::Fillet", "Fillet")
body.addObject(fillet)
fillet.Base = (pad4, edges_at(pad4, [
    (-4, 61.457, 6),
    (21, 53.665, 3),
    (-29, 39.823, 6),
    (-29, 53.665, 3),
    (21, 46.165, 6),
]))
fillet.Radius = 4

# Sketch on XY plane
sketch6 = doc.addObject("Sketcher::SketchObject", "Sketch005")
body.addObject(sketch6)
sketch6.AttachmentSupport = (doc.XY_Plane, [""])
sketch6.MapMode = "FlatFace"
sketch6.AttachmentOffset = App.Placement(App.Vector(0, 0, 6), App.Rotation())
sketch6.addGeometry(Part.Circle(App.Vector(-18, 48.4, 0), App.Vector(0, 0, 1), 1.9), False)
sketch6.addGeometry(Part.Circle(App.Vector(-4, 51.5, 0), App.Vector(0, 0, 1), 1.9), False)
sketch6.addGeometry(Part.Circle(App.Vector(10, 48.4, 0), App.Vector(0, 0, 1), 1.9), False)
sketch6.addConstraint(Sketcher.Constraint("Equal", 0, 1))
sketch6.addConstraint(Sketcher.Constraint("Equal", 1, 2))
sketch6.addConstraint(Sketcher.Constraint("Horizontal", 0, 3, 2, 3))
sketch6.addConstraint(Sketcher.Constraint("Diameter", 0, Q("3.9 mm")))
sketch6.addConstraint(Sketcher.Constraint("DistanceX", 0, 3, -1, 1, Q("18 mm")))
sketch6.addConstraint(Sketcher.Constraint("DistanceX", 1, 3, -1, 1, Q("4 mm")))
sketch6.addConstraint(Sketcher.Constraint("DistanceX", -1, 1, 2, 3, Q("10 mm")))
sketch6.addConstraint(Sketcher.Constraint("DistanceY", -1, 1, 0, 3, Q("48.441363 mm")))
sketch6.addConstraint(Sketcher.Constraint("DistanceY", -1, 1, 1, 3, Q("51.457496 mm")))
doc.recompute()
hole = doc.addObject("PartDesign::Hole", "Hole")
body.addObject(hole)
hole.Profile = sketch6
hole.ThreadType = "None"
hole.Diameter = 3.9
hole.DepthType = "Dimension"
hole.Depth = 13.828322
hole.DrillPoint = "Angled"
hole.DrillPointAngle = 118
body2 = doc.addObject("PartDesign::Body", "Body001")
doc.recompute()

mirroring = doc.addObject("Part::Mirroring", "Mirroring")
mirroring.Source = body
mirroring.Base = App.Vector(0, 0, 0)
mirroring.Normal = App.Vector(0, 0, 1)
body2.BaseFeature = mirroring
doc.recompute()
body.Visibility = False
mirroring.Visibility = False

doc.recompute()
